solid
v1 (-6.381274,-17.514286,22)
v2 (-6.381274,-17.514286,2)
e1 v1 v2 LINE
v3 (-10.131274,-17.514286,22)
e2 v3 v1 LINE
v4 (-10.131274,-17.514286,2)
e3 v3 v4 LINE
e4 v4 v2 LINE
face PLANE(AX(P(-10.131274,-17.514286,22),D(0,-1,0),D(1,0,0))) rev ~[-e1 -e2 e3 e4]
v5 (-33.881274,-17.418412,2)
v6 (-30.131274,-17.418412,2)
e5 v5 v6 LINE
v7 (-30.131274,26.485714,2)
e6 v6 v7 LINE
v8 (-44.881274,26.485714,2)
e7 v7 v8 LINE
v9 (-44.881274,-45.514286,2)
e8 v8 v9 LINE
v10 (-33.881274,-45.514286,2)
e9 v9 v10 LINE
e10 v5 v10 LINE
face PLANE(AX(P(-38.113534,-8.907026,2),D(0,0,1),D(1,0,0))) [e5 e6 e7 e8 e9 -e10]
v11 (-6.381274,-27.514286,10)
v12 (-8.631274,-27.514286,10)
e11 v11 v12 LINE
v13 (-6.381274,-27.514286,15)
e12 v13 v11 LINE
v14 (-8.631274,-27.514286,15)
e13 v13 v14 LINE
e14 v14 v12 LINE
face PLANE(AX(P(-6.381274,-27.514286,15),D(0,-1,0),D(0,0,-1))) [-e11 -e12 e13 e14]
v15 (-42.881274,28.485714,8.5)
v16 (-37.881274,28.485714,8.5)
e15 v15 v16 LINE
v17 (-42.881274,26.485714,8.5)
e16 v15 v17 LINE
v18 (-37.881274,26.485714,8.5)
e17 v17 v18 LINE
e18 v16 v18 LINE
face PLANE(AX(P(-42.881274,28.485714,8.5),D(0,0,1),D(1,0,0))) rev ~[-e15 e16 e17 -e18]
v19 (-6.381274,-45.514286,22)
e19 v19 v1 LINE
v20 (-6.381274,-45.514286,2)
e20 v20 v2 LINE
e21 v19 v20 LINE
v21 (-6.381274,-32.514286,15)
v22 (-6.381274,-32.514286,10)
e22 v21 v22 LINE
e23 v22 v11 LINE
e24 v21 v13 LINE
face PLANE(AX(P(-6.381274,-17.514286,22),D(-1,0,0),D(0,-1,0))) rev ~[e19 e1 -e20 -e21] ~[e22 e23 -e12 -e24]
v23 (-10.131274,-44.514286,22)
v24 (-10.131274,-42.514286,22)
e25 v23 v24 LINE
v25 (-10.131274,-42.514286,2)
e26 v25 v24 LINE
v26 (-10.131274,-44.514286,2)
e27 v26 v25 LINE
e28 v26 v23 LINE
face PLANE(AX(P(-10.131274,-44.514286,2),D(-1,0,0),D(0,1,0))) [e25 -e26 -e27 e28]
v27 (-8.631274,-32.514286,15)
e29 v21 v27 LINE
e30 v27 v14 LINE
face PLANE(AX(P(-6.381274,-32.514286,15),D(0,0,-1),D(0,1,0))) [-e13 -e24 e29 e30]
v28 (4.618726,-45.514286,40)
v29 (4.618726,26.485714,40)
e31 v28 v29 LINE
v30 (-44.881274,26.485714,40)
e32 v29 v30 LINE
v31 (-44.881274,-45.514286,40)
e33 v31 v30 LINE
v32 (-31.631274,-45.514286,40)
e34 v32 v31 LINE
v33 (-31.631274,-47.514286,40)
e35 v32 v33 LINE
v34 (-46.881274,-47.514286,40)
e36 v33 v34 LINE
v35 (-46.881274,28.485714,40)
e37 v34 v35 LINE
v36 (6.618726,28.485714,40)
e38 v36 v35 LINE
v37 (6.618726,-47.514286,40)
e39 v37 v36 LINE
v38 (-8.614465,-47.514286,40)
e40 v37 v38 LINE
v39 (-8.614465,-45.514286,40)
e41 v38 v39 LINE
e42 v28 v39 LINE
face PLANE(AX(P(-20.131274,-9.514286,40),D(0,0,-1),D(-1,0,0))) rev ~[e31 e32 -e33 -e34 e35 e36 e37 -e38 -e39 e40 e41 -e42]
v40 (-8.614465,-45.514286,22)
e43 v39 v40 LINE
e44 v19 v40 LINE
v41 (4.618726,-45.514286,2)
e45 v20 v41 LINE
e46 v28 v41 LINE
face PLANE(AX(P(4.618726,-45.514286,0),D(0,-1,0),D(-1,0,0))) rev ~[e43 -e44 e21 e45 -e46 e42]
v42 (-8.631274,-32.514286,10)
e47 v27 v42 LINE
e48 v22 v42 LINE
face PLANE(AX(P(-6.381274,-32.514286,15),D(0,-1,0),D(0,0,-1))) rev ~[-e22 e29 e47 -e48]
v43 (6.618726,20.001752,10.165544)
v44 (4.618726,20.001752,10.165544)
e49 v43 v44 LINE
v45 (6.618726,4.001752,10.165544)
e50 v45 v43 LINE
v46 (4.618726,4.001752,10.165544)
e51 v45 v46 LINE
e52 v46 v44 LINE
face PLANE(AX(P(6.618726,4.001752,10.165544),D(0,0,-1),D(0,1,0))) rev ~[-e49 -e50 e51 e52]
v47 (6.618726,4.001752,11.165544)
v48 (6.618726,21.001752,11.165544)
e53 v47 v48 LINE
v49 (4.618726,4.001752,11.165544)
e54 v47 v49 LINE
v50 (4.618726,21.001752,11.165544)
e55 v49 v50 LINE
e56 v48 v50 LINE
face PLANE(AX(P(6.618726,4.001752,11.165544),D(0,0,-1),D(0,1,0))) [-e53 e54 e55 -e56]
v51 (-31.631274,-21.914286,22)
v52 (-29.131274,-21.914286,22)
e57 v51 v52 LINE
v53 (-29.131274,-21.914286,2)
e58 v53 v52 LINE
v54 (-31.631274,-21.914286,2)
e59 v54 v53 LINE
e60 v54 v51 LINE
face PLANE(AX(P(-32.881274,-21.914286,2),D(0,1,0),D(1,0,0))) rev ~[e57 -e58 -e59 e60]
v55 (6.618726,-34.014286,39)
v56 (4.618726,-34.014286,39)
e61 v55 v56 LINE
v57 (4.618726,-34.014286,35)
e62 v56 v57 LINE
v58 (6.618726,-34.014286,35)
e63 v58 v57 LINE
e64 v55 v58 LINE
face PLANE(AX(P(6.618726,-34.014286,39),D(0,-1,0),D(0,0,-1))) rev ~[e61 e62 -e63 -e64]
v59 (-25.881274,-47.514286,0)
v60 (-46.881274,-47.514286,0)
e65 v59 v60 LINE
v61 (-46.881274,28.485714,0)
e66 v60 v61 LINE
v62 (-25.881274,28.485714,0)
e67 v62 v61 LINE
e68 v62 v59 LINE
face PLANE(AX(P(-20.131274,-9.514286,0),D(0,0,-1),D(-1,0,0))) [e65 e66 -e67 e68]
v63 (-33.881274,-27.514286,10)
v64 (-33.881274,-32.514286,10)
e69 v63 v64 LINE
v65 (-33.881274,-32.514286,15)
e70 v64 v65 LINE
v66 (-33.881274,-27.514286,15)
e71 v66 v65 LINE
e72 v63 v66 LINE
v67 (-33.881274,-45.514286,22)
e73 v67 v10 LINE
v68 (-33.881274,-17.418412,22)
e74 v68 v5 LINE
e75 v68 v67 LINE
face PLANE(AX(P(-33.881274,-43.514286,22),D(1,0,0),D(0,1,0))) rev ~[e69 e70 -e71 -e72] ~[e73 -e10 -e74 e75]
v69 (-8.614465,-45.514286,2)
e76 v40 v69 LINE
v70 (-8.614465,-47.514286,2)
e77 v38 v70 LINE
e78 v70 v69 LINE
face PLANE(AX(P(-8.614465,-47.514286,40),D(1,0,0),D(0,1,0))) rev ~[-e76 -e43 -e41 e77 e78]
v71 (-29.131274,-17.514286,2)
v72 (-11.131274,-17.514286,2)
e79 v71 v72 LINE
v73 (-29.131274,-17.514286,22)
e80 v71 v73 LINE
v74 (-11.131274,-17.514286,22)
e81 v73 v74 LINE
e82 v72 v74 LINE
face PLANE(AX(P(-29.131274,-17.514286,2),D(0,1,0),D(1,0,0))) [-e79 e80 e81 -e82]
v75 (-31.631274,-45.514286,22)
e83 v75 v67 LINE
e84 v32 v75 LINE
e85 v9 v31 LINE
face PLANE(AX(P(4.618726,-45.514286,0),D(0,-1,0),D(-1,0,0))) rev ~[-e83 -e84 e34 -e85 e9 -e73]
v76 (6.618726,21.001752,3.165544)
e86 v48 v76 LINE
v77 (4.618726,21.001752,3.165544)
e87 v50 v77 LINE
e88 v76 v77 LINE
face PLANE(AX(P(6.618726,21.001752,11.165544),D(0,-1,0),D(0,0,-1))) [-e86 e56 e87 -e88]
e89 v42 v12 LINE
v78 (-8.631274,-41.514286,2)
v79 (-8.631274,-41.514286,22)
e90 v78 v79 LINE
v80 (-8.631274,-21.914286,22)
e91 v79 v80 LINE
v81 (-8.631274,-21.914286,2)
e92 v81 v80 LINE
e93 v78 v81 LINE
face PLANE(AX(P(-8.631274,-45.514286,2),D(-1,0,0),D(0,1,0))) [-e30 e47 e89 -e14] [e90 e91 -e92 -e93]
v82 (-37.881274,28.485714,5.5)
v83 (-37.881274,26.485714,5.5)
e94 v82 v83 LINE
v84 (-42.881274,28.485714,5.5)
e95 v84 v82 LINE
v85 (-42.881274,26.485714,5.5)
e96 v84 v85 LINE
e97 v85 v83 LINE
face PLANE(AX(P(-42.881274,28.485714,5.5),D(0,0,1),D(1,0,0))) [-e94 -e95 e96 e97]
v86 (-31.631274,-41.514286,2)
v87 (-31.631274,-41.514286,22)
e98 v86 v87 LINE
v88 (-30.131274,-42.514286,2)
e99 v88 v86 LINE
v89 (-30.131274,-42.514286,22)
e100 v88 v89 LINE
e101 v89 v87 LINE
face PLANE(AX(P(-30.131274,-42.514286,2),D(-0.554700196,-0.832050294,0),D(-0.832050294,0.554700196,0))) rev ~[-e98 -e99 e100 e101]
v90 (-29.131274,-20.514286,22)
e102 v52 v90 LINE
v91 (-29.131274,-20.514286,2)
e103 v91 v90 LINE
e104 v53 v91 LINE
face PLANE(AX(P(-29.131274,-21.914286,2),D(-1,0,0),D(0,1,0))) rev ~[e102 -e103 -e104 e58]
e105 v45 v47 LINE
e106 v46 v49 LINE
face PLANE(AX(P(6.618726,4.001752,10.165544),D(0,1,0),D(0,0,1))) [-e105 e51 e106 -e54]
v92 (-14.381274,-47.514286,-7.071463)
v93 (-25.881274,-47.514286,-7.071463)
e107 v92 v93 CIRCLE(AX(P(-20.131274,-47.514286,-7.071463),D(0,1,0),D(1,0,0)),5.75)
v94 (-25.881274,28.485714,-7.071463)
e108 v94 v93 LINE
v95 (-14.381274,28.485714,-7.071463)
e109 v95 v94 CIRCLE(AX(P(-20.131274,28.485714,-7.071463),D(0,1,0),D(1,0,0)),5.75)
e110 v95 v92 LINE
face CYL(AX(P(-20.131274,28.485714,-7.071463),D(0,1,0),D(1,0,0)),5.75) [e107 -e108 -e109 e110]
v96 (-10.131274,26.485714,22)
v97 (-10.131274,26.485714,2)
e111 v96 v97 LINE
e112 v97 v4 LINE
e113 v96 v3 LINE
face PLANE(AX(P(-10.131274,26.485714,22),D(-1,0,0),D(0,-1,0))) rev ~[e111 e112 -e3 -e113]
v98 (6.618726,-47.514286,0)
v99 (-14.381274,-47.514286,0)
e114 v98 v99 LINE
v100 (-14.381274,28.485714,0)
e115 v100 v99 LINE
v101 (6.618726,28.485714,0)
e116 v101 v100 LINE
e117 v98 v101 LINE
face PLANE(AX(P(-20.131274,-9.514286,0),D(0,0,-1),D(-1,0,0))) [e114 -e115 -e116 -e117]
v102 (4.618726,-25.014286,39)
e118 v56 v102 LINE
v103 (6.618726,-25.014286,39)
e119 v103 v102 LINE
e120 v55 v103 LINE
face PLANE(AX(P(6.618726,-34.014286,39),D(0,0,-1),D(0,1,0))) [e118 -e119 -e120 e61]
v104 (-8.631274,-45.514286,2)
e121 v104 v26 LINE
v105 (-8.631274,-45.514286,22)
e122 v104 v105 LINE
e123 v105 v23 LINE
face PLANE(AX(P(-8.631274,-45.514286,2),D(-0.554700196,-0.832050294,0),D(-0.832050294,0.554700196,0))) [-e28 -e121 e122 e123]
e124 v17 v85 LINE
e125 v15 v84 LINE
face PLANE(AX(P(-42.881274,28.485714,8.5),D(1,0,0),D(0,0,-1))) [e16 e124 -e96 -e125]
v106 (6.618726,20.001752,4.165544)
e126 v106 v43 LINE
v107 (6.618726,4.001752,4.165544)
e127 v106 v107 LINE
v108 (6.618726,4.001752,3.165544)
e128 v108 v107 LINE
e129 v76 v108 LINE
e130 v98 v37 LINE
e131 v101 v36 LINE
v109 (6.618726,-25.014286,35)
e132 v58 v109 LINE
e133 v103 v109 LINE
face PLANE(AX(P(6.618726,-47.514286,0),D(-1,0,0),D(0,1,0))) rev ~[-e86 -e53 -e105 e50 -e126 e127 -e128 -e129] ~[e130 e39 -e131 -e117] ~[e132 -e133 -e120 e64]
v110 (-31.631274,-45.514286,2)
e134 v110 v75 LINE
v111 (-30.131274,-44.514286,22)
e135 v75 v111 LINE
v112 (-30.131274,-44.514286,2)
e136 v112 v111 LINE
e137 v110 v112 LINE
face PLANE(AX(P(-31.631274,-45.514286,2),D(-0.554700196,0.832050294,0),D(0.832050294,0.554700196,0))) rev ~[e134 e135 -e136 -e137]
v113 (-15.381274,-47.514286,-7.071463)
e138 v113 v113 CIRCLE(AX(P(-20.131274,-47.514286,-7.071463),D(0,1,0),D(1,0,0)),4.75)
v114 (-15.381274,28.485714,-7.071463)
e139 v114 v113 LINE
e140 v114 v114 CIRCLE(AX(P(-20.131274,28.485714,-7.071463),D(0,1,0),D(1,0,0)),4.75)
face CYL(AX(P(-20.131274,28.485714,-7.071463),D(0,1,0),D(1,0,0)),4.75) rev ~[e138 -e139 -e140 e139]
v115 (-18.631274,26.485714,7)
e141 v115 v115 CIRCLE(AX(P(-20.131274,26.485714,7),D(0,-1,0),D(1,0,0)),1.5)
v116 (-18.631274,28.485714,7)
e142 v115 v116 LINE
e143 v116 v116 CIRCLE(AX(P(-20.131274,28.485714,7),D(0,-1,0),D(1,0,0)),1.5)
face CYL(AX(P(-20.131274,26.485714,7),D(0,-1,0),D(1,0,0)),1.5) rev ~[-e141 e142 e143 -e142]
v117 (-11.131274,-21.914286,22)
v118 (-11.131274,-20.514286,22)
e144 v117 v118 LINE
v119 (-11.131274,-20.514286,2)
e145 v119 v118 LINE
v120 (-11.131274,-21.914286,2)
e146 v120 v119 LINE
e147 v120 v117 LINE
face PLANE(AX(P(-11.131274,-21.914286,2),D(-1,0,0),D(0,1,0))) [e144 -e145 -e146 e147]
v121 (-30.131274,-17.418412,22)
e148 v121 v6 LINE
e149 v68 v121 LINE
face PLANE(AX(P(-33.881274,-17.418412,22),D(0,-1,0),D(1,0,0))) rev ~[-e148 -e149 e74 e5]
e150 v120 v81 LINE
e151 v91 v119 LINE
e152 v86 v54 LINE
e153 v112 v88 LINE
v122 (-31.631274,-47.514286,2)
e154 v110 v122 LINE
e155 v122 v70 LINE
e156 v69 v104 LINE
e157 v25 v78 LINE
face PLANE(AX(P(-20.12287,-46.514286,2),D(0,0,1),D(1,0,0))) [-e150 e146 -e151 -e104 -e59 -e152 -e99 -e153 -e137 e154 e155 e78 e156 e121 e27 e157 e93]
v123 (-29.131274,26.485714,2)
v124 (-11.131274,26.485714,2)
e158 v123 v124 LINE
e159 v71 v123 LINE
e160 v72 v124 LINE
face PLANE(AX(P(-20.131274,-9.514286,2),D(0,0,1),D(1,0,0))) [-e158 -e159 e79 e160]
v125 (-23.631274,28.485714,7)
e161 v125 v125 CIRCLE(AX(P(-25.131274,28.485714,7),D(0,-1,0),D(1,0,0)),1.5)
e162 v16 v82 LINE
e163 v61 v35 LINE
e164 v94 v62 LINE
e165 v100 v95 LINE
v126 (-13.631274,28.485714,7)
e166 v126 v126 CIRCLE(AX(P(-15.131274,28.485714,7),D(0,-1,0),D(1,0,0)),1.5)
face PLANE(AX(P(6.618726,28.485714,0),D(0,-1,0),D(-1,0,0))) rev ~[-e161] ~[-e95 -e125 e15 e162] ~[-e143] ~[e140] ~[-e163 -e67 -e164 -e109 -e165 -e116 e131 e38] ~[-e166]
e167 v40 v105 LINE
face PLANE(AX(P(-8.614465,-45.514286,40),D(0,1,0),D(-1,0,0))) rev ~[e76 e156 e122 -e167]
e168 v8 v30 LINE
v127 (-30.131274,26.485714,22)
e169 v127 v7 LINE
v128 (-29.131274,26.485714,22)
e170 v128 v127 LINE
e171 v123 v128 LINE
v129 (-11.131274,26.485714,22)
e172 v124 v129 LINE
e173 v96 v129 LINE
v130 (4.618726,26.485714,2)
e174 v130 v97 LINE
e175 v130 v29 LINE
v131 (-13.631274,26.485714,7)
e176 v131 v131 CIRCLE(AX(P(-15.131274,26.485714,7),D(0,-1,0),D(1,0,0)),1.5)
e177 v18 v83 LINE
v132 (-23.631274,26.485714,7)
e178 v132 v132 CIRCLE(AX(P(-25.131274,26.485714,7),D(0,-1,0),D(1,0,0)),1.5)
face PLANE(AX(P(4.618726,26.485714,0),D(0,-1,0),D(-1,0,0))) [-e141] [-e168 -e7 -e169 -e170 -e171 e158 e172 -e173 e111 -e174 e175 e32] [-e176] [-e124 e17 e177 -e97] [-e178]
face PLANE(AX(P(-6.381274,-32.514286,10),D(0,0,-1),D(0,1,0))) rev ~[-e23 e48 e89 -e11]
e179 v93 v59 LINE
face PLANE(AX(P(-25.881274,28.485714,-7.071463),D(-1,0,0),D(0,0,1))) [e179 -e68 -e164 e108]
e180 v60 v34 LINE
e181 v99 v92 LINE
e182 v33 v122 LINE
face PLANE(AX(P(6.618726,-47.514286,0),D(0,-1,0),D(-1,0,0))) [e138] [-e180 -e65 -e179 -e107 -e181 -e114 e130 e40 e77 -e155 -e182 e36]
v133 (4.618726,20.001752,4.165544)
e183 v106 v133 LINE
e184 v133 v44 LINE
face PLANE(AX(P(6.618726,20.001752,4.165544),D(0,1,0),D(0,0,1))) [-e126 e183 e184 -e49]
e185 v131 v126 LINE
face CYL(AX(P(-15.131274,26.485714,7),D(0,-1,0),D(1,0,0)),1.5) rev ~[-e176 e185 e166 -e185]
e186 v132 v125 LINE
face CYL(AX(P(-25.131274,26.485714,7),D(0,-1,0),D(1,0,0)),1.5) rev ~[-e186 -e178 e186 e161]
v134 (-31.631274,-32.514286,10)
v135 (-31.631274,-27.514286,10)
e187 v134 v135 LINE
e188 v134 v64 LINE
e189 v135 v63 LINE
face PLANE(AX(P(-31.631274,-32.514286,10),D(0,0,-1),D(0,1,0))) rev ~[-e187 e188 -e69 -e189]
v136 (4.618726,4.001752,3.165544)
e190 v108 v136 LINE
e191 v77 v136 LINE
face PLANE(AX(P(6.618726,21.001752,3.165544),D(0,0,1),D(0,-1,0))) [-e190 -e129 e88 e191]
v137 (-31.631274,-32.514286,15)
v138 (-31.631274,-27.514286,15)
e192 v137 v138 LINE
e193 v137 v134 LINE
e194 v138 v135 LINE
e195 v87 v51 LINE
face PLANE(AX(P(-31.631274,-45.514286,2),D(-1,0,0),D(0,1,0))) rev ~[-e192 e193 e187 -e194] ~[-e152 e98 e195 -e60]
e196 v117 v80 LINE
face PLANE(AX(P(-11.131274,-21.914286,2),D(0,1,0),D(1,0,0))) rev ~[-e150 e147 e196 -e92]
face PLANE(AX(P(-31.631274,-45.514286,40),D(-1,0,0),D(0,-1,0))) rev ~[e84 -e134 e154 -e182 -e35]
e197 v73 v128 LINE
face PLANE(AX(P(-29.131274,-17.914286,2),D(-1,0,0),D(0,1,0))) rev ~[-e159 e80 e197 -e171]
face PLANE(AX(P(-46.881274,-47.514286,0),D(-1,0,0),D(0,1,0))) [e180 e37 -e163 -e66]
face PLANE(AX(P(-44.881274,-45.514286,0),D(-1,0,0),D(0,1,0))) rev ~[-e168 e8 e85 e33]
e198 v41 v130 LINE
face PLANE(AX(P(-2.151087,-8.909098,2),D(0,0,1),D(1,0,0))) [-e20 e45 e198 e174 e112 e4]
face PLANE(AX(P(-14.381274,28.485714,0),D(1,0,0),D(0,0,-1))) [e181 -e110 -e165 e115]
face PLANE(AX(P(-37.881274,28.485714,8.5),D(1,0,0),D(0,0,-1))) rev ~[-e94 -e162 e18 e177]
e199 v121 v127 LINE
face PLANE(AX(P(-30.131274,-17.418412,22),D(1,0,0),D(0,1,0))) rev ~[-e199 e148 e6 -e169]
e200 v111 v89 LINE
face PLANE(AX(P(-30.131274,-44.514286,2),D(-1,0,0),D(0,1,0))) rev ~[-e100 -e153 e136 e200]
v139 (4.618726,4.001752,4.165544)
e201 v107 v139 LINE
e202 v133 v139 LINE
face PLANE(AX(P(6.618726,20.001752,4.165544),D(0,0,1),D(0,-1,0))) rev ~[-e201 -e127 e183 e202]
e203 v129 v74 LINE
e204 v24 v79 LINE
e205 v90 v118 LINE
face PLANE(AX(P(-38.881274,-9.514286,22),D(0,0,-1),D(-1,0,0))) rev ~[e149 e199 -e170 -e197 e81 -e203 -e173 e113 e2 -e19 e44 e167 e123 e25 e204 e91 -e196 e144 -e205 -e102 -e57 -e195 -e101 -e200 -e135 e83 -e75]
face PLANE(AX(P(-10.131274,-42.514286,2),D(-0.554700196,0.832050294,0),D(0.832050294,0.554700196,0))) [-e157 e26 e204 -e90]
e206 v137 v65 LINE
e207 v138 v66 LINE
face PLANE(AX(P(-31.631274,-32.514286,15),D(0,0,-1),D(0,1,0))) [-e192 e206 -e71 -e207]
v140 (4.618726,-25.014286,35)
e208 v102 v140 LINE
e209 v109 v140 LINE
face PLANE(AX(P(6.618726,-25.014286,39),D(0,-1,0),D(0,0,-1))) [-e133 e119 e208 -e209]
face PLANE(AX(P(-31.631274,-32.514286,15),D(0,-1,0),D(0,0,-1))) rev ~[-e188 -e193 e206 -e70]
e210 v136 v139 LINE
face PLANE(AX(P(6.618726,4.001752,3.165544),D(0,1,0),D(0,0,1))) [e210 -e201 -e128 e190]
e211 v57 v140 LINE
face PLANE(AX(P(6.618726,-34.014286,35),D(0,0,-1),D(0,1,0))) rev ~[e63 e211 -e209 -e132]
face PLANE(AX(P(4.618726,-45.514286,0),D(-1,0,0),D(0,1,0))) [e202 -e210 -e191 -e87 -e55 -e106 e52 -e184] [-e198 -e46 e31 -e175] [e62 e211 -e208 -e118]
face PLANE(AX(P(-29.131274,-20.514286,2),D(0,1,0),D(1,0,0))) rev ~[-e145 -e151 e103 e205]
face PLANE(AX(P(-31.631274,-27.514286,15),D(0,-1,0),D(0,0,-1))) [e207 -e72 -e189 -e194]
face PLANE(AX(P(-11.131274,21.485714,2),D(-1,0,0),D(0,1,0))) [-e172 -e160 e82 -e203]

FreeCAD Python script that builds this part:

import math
import FreeCAD as App
import Part
import Sketcher
from FreeCAD import Vector


def add_polygon(sketch, points):
    """Adds a closed chain of lines whose ends are joined by coincident constraints."""
    first, n = sketch.GeometryCount, len(points)
    for a, b in zip(points, points[1:] + points[:1]):
        sketch.addGeometry(Part.LineSegment(App.Vector(*a, 0), App.Vector(*b, 0)), False)
    for i in range(n):
        sketch.addConstraint(Sketcher.Constraint("Coincident", first + i, 2, first + (i + 1) % n, 1))

doc = App.newDocument("Part")
body = doc.addObject("PartDesign::Body", "Body")

# Sketch on XY plane
sketch1 = body.newObject("Sketcher::SketchObject", "Sketch")
sketch1.AttachmentSupport = (doc.getObject("XY_Plane"), [""])
sketch1.MapMode = "FlatFace"
add_polygon(sketch1, [(-33, 26), (-33, -46), (-7, -46), (-7, 26)])  # lines 0-3
sketch1.addConstraint([
    Sketcher.Constraint("Vertical", 0),
    Sketcher.Constraint("Horizontal", 1),
    Sketcher.Constraint("Vertical", 2),
    Sketcher.Constraint("Horizontal", 3),
    Sketcher.Constraint("DistanceY", 0, 2, 0, 1, 72.0),
    Sketcher.Constraint("DistanceX", 1, 1, 1, 2, 25.5),
    Sketcher.Constraint("DistanceX", 0, 2, -1, 1, 32.881274),
    Sketcher.Constraint("DistanceY", 0, 2, -1, 1, 45.514286),
])
pad1 = body.newObject("PartDesign::Pad", "Pad")
pad1.Profile = sketch1
pad1.Length = 2

# Sketch on XY plane
sketch2 = body.newObject("Sketcher::SketchObject", "Sketch001")
sketch2.AttachmentSupport = (doc.getObject("XY_Plane"), [""])
sketch2.MapMode = "FlatFace"
sketch2.AttachmentOffset = App.Placement(Vector(0, 0, 2), App.Rotation())
add_polygon(sketch2, [(-32.9, 26.5), (-32.9, 21.5), (-29.1, 21.5), (-29.1, 26.5)])  # lines 0-3
add_polygon(sketch2, [(-32.9, -17.9), (-32.9, -21.9), (-29.1, -21.9), (-29.1, -17.9)])  # lines 4-7
add_polygon(sketch2, [(-11.1, -17.9), (-11.1, -21.9), (-7.4, -21.9), (-7.4, -17.9)])  # lines 8-11
add_polygon(sketch2, [(-11.1, 26.5), (-11.1, 21.5), (-7.4, 21.5), (-7.4, 26.5)])  # lines 12-15
sketch2.addConstraint([
    Sketcher.Constraint("Vertical", 0),
    Sketcher.Constraint("Horizontal", 1),
    Sketcher.Constraint("Vertical", 2),
    Sketcher.Constraint("Horizontal", 3),
    Sketcher.Constraint("Vertical", 4),
    Sketcher.Constraint("Horizontal", 5),
    Sketcher.Constraint("Vertical", 6),
    Sketcher.Constraint("Horizontal", 7),
    Sketcher.Constraint("Vertical", 8),
    Sketcher.Constraint("Horizontal", 9),
    Sketcher.Constraint("Vertical", 10),
    Sketcher.Constraint("Horizontal", 11),
    Sketcher.Constraint("Vertical", 12),
    Sketcher.Constraint("Horizontal", 13),
    Sketcher.Constraint("Vertical", 14),
    Sketcher.Constraint("Horizontal", 15),
    Sketcher.Constraint("Horizontal", 5, 2, 8, 2),
    Sketcher.Constraint("Horizontal", 7, 2, 10, 2),
    Sketcher.Constraint("Horizontal", 1, 2, 12, 2),
    Sketcher.Constraint("Horizontal", 3, 2, 14, 2),
    Sketcher.Constraint("Vertical", 3, 2, 4, 2),
    Sketcher.Constraint("Vertical", 2, 2, 5, 2),
    Sketcher.Constraint("Vertical", 11, 2, 12, 2),
    Sketcher.Constraint("Vertical", 10, 2, 13, 2),
    Sketcher.Constraint("Equal", 7, 9),
    Sketcher.Constraint("DistanceY", 0, 2, 0, 1, 5.0),
    Sketcher.Constraint("DistanceY", 4, 2, 4, 1, 4.0),
    Sketcher.Constraint("DistanceX", 5, 2, 8, 2, 18.0),
    Sketcher.Constraint("DistanceX", 1, 1, 1, 2, 3.75),
    Sketcher.Constraint("DistanceY", 4, 2, 0, 2, 43.4),
    Sketcher.Constraint("DistanceX", 0, 2, -1, 1, 32.881274),
    Sketcher.Constraint("DistanceY", -1, 1, 0, 2, 21.485714),
])
pad2 = body.newObject("PartDesign::Pad", "Pad001")
pad2.Profile = sketch2
pad2.Length = 20

# Sketch on XY plane
sketch3 = body.newObject("Sketcher::SketchObject", "Sketch002")
sketch3.AttachmentSupport = (doc.getObject("XY_Plane"), [""])
sketch3.MapMode = "FlatFace"
sketch3.AttachmentOffset = App.Placement(Vector(0, 0, 2), App.Rotation())
add_polygon(sketch3, [(-29.1, -17.5), (-29.1, -20.5), (-11.1, -20.5), (-11.1, -17.5)])  # lines 0-3
sketch3.addConstraint([
    Sketcher.Constraint("Vertical", 0),
    Sketcher.Constraint("Horizontal", 1),
    Sketcher.Constraint("Vertical", 2),
    Sketcher.Constraint("Horizontal", 3),
    Sketcher.Constraint("DistanceX", 1, 1, 1, 2, 18.0),
    Sketcher.Constraint("DistanceY", 0, 2, 0, 1, 3.0),
    Sketcher.Constraint("DistanceX", 0, 2, -1, 1, 29.131274),
    Sketcher.Constraint("DistanceY", 0, 2, -1, 1, 20.514286),
])
pad3 = body.newObject("PartDesign::Pad", "Pad002")
pad3.Profile = sketch3
pad3.Length = 20

# Sketch on XY plane
sketch4 = body.newObject("Sketcher::SketchObject", "Sketch003")
sketch4.AttachmentSupport = (doc.getObject("XY_Plane"), [""])
sketch4.MapMode = "FlatFace"
sketch4.AttachmentOffset = App.Placement(Vector(0, 0, 2), App.Rotation())
add_polygon(sketch4, [(-32.9, 21.5), (-32.9, -17.9), (-29.1, -17.9), (-29.1, 21.5)])  # lines 0-3
add_polygon(sketch4, [(-11.1, 21.5), (-11.1, -17.9), (-7.4, -17.9), (-7.4, 21.5)])  # lines 4-7
sketch4.addConstraint([
    Sketcher.Constraint("Vertical", 0),
    Sketcher.Constraint("Horizontal", 1),
    Sketcher.Constraint("Vertical", 2),
    Sketcher.Constraint("Horizontal", 3),
    Sketcher.Constraint("Vertical", 4),
    Sketcher.Constraint("Horizontal", 5),
    Sketcher.Constraint("Vertical", 6),
    Sketcher.Constraint("Horizontal", 7),
    Sketcher.Constraint("Horizontal", 1, 2, 4, 2),
    Sketcher.Constraint("Horizontal", 3, 2, 6, 2),
    Sketcher.Constraint("Equal", 3, 5),
    Sketcher.Constraint("DistanceY", 0, 2, 0, 1, 39.4),
    Sketcher.Constraint("DistanceX", 1, 2, 4, 2, 18.0),
    Sketcher.Constraint("DistanceX", 1, 1, 1, 2, 3.75),
    Sketcher.Constraint("DistanceX", 0, 2, -1, 1, 32.881274),
    Sketcher.Constraint("DistanceY", 0, 2, -1, 1, 17.914286),
])
pad4 = body.newObject("PartDesign::Pad", "Pad003")
pad4.Profile = sketch4
pad4.Length = 20

# Sketch on XY plane
sketch5 = body.newObject("Sketcher::SketchObject", "Sketch004")
sketch5.AttachmentSupport = (doc.getObject("XY_Plane"), [""])
sketch5.MapMode = "FlatFace"
sketch5.AttachmentOffset = App.Placement(Vector(0, 0, 2), App.Rotation())
add_polygon(sketch5, [(-32.9, -21.9), (-32.9, -45.5), (-31.6, -45.5), (-31.6, -21.9)])  # lines 0-3
add_polygon(sketch5, [(-8.6, -21.9), (-8.6, -45.5), (-7.4, -45.5), (-7.4, -21.9)])  # lines 4-7
sketch5.addConstraint([
    Sketcher.Constraint("Vertical", 0),
    Sketcher.Constraint("Horizontal", 1),
    Sketcher.Constraint("Vertical", 2),
    Sketcher.Constraint("Horizontal", 3),
    Sketcher.Constraint("Vertical", 4),
    Sketcher.Constraint("Horizontal", 5),
    Sketcher.Constraint("Vertical", 6),
    Sketcher.Constraint("Horizontal", 7),
    Sketcher.Constraint("Horizontal", 1, 2, 4, 2),
    Sketcher.Constraint("Horizontal", 3, 2, 6, 2),
    Sketcher.Constraint("Equal", 3, 5),
    Sketcher.Constraint("DistanceY", 0, 2, 0, 1, 23.6),
    Sketcher.Constraint("DistanceX", 1, 2, 4, 2, 23.0),
    Sketcher.Constraint("DistanceX", 1, 1, 1, 2, 1.25),
    Sketcher.Constraint("DistanceX", 0, 2, -1, 1, 32.881274),
    Sketcher.Constraint("DistanceY", 0, 2, -1, 1, 45.514286),
])
pad5 = body.newObject("PartDesign::Pad", "Pad004")
pad5.Profile = sketch5
pad5.Length = 20

# Sketch on XY plane
sketch6 = body.newObject("Sketcher::SketchObject", "Sketch005")
sketch6.AttachmentSupport = (doc.getObject("XY_Plane"), [""])
sketch6.MapMode = "FlatFace"
sketch6.AttachmentOffset = App.Placement(Vector(0, 0, 2), App.Rotation())
add_polygon(sketch6, [(-31.6, -45.5), (-30.1, -44.5), (-30.1, -42.5), (-31.6, -41.5)])  # lines 0-3
add_polygon(sketch6, [(-10.1, -44.5), (-8.6, -45.5), (-8.6, -41.5), (-10.1, -42.5)])  # lines 4-7
sketch6.addConstraint([
    Sketcher.Constraint("Vertical", 1),
    Sketcher.Constraint("Vertical", 3),
    Sketcher.Constraint("Vertical", 5),
    Sketcher.Constraint("Vertical", 7),
    Sketcher.Constraint("Parallel", 2, 4),
    Sketcher.Constraint("Parallel", 0, 6),
    Sketcher.Constraint("Horizontal", 3, 2, 4, 2),
    Sketcher.Constraint("Horizontal", 2, 2, 5, 2),
    Sketcher.Constraint("Horizontal", 1, 2, 6, 2),
    Sketcher.Constraint("Horizontal", 0, 2, 7, 2),
    Sketcher.Constraint("DistanceY", 1, 1, 1, 2, 2.0),
    Sketcher.Constraint("DistanceY", 3, 2, 3, 1, 4.0),
    Sketcher.Constraint("DistanceX", 3, 2, 4, 2, 23.0),
    Sketcher.Constraint("DistanceX", 1, 2, 6, 2, 20.0),
    Sketcher.Constraint("DistanceX", 0, 2, -1, 1, 30.131274),
    Sketcher.Constraint("DistanceY", 0, 2, -1, 1, 44.514286),
])
pad6 = body.newObject("PartDesign::Pad", "Pad005")
pad6.Profile = sketch6
pad6.Length = 20

# Sketch on XY plane
sketch7 = body.newObject("Sketcher::SketchObject", "Sketch006")
sketch7.AttachmentSupport = (doc.getObject("XY_Plane"), [""])
sketch7.MapMode = "FlatFace"
add_polygon(sketch7, [(-33, 26), (-33, -46), (-45, -46), (-45, 26)])  # lines 0-3
add_polygon(sketch7, [(5, 26), (5, -46), (-7, -46), (-7, 26)])  # lines 4-7
sketch7.addConstraint([
    Sketcher.Constraint("Vertical", 0),
    Sketcher.Constraint("Horizontal", 1),
    Sketcher.Constraint("Vertical", 2),
    Sketcher.Constraint("Horizontal", 3),
    Sketcher.Constraint("Vertical", 4),
    Sketcher.Constraint("Horizontal", 5),
    Sketcher.Constraint("Vertical", 6),
    Sketcher.Constraint("Horizontal", 7),
    Sketcher.Constraint("Horizontal", 1, 2, 4, 2),
    Sketcher.Constraint("Horizontal", 3, 2, 6, 2),
    Sketcher.Constraint("Equal", 3, 5),
    Sketcher.Constraint("DistanceX", 1, 2, 1, 1, 12.0),
    Sketcher.Constraint("DistanceY", 0, 2, 0, 1, 72.0),
    Sketcher.Constraint("DistanceX", 0, 2, 4, 2, 37.5),
    Sketcher.Constraint("DistanceX", 0, 2, -1, 1, 32.881274),
    Sketcher.Constraint("DistanceY", 0, 2, -1, 1, 45.514286),
])
pad7 = body.newObject("PartDesign::Pad", "Pad006")
pad7.Profile = sketch7
pad7.Length = 22

# Sketch on XY plane
sketch8 = body.newObject("Sketcher::SketchObject", "Sketch007")
sketch8.AttachmentSupport = (doc.getObject("XY_Plane"), [""])
sketch8.MapMode = "FlatFace"
add_polygon(sketch8, [(7, 28), (7, -48), (-47, -48), (-47, 28)])  # lines 0-3
add_polygon(sketch8, [(-45, -46), (5, -46), (5, 26), (-45, 26)])  # lines 4-7
sketch8.addConstraint([
    Sketcher.Constraint("Vertical", 0),
    Sketcher.Constraint("Horizontal", 1),
    Sketcher.Constraint("Vertical", 2),
    Sketcher.Constraint("Horizontal", 3),
    Sketcher.Constraint("Horizontal", 4),
    Sketcher.Constraint("Vertical", 5),
    Sketcher.Constraint("Horizontal", 6),
    Sketcher.Constraint("Vertical", 7),
    Sketcher.Constraint("DistanceY", 0, 2, 0, 1, 76.0),
    Sketcher.Constraint("DistanceY", 5, 1, 5, 2, 72.0),
    Sketcher.Constraint("DistanceX", 1, 2, 1, 1, 53.5),
    Sketcher.Constraint("DistanceX", 4, 1, 4, 2, 49.5),
    Sketcher.Constraint("DistanceX", 4, 2, 0, 2, 2.0),
    Sketcher.Constraint("DistanceY", 0, 2, 4, 2, 2.0),
    Sketcher.Constraint("DistanceX", -1, 1, 0, 2, 6.618726),
    Sketcher.Constraint("DistanceY", 0, 2, -1, 1, 47.514286),
])
pad8 = body.newObject("PartDesign::Pad", "Pad007")
pad8.Profile = sketch8
pad8.Length = 40

# Sketch on XY plane
sketch9 = body.newObject("Sketcher::SketchObject", "Sketch008")
sketch9.AttachmentSupport = (doc.getObject("XY_Plane"), [""])
sketch9.MapMode = "FlatFace"
sketch9.AttachmentOffset = App.Placement(Vector(0, 0, 22), App.Rotation())
add_polygon(sketch9, [(-43, 24), (-43, -44), (-34, -44), (-34, 24)])  # lines 0-3
add_polygon(sketch9, [(-6, 24), (-6, -44), (3, -44), (3, 24)])  # lines 4-7
sketch9.addConstraint([
    Sketcher.Constraint("Vertical", 0),
    Sketcher.Constraint("Horizontal", 1),
    Sketcher.Constraint("Vertical", 2),
    Sketcher.Constraint("Horizontal", 3),
    Sketcher.Constraint("Vertical", 4),
    Sketcher.Constraint("Horizontal", 5),
    Sketcher.Constraint("Vertical", 6),
    Sketcher.Constraint("Horizontal", 7),
    Sketcher.Constraint("Horizontal", 1, 2, 4, 2),
    Sketcher.Constraint("Horizontal", 3, 2, 6, 2),
    Sketcher.Constraint("Equal", 3, 5),
    Sketcher.Constraint("DistanceX", 1, 1, 1, 2, 9.0),
    Sketcher.Constraint("DistanceY", 0, 2, 0, 1, 68.0),
    Sketcher.Constraint("DistanceX", 1, 2, 4, 2, 27.5),
    Sketcher.Constraint("DistanceX", 0, 2, -1, 1, 42.881274),
    Sketcher.Constraint("DistanceY", 0, 2, -1, 1, 43.514286),
])
pocket1 = body.newObject("PartDesign::Pocket", "Pocket")
pocket1.Profile = sketch9
pocket1.Length = 20

# Sketch on XZ plane
sketch10 = body.newObject("Sketcher::SketchObject", "Sketch009")
sketch10.AttachmentSupport = (doc.getObject("XZ_Plane"), [""])
sketch10.MapMode = "FlatFace"
sketch10.AttachmentOffset = App.Placement(Vector(0, 0, -26.485714), App.Rotation())
sketch10.addGeometry([
    Part.Circle(Vector(-25.1, 7, 0), Vector(0, 0, 1), 1.5),
    Part.Circle(Vector(-15.1, 7, 0), Vector(0, 0, 1), 1.5),
    Part.Circle(Vector(-20.1, 7, 0), Vector(0, 0, 1), 1.5),
], False)
sketch10.addConstraint([
    Sketcher.Constraint("Equal", 0, 1),
    Sketcher.Constraint("Equal", 1, 2),
    Sketcher.Constraint("Horizontal", 0, 3, 1, 3),
    Sketcher.Constraint("Horizontal", 1, 3, 2, 3),
    Sketcher.Constraint("Diameter", 0, 3.0),
    Sketcher.Constraint("DistanceY", -1, 1, 0, 3, 7.0),
    Sketcher.Constraint("DistanceX", 0, 3, 1, 3, 10.0),
    Sketcher.Constraint("DistanceX", 0, 3, 2, 3, 5.0),
    Sketcher.Constraint("DistanceX", 0, 3, -1, 1, 25.131274),
])
pocket2 = body.newObject("PartDesign::Pocket", "Pocket001")
pocket2.Profile = sketch10
pocket2.Type = "ThroughAll"

# Sketch on XY plane
sketch11 = body.newObject("Sketcher::SketchObject", "Sketch010")
sketch11.AttachmentSupport = (doc.getObject("XY_Plane"), [""])
sketch11.MapMode = "FlatFace"
sketch11.AttachmentOffset = App.Placement(Vector(0, 0, 22), App.Rotation())
add_polygon(sketch11, [(-33.9, -17.4), (-30.1, -17.4), (-30.1, 26.5), (-44.9, 26.5), (-44.9, -45.5), (-33.9, -45.5)])  # lines 0-5
add_polygon(sketch11, [(-10.1, 26.5), (-10.1, -17.5), (-6.4, -17.5), (-6.4, -45.5), (4.6, -45.5), (4.6, 26.5)])  # lines 6-11
sketch11.addConstraint([
    Sketcher.Constraint("Horizontal", 0),
    Sketcher.Constraint("Vertical", 1),
    Sketcher.Constraint("Horizontal", 2),
    Sketcher.Constraint("Vertical", 3),
    Sketcher.Constraint("Horizontal", 4),
    Sketcher.Constraint("Vertical", 5),
    Sketcher.Constraint("Vertical", 6),
    Sketcher.Constraint("Horizontal", 7),
    Sketcher.Constraint("Vertical", 8),
    Sketcher.Constraint("Horizontal", 9),
    Sketcher.Constraint("Vertical", 10),
    Sketcher.Constraint("Horizontal", 11),
    Sketcher.Constraint("Horizontal", 4, 2, 8, 2),
    Sketcher.Constraint("Horizontal", 2, 2, 10, 2),
    Sketcher.Constraint("Equal", 0, 7),
    Sketcher.Constraint("Equal", 4, 9),
    Sketcher.Constraint("DistanceX", 4, 1, 4, 2, 11.0),
    Sketcher.Constraint("DistanceY", 3, 2, 3, 1, 72.0),
    Sketcher.Constraint("DistanceY", 6, 2, 6, 1, 44.0),
    Sketcher.Constraint("DistanceX", 0, 2, 6, 2, 20.0),
    Sketcher.Constraint("DistanceX", 0, 1, 0, 2, 3.75),
    Sketcher.Constraint("DistanceY", 1, 1, 1, 2, 43.904126),
    Sketcher.Constraint("DistanceY", 0, 2, -1, 1, 17.418412),
    Sketcher.Constraint("DistanceX", 0, 2, -1, 1, 30.131274),
])
pocket3 = body.newObject("PartDesign::Pocket", "Pocket002")
pocket3.Profile = sketch11
pocket3.Length = 20

# Sketch on YZ plane
sketch12 = body.newObject("Sketcher::SketchObject", "Sketch011")
sketch12.AttachmentSupport = (doc.getObject("YZ_Plane"), [""])
sketch12.MapMode = "FlatFace"
sketch12.AttachmentOffset = App.Placement(Vector(0, 0, 6.618726), App.Rotation())
add_polygon(sketch12, [(-25, 39), (-34, 39), (-34, 35), (-25, 35)])  # lines 0-3
sketch12.addConstraint([
    Sketcher.Constraint("Horizontal", 0),
    Sketcher.Constraint("Vertical", 1),
    Sketcher.Constraint("Horizontal", 2),
    Sketcher.Constraint("Vertical", 3),
    Sketcher.Constraint("DistanceX", 0, 2, 0, 1, 9.0),
    Sketcher.Constraint("DistanceY", 1, 2, 1, 1, 4.0),
    Sketcher.Constraint("DistanceY", -1, 1, 0, 2, 39.0),
    Sketcher.Constraint("DistanceX", 0, 2, -1, 1, 34.014286),
])
pocket4 = body.newObject("PartDesign::Pocket", "Pocket003")
pocket4.Profile = sketch12
pocket4.Type = "UpToFirst"

# Sketch on YZ plane
sketch13 = body.newObject("Sketcher::SketchObject", "Sketch012")
sketch13.AttachmentSupport = (doc.getObject("YZ_Plane"), [""])
sketch13.MapMode = "FlatFace"
sketch13.AttachmentOffset = App.Placement(Vector(0, 0, -31.631274), App.Rotation())
add_polygon(sketch13, [(-28, 15), (-33, 15), (-33, 10), (-28, 10)])  # lines 0-3
sketch13.addConstraint([
    Sketcher.Constraint("Horizontal", 0),
    Sketcher.Constraint("Vertical", 1),
    Sketcher.Constraint("Horizontal", 2),
    Sketcher.Constraint("Vertical", 3),
    Sketcher.Constraint("Equal", 2, 1),
    Sketcher.Constraint("DistanceX", 0, 2, 0, 1, 5.0),
    Sketcher.Constraint("DistanceY", -1, 1, 0, 2, 15.0),
    Sketcher.Constraint("DistanceX", 0, 2, -1, 1, 32.514286),
])
pocket5 = body.newObject("PartDesign::Pocket", "Pocket004")
pocket5.Profile = sketch13
pocket5.Type = "UpToFirst"

# Sketch on YZ plane
sketch14 = body.newObject("Sketcher::SketchObject", "Sketch013")
sketch14.AttachmentSupport = (doc.getObject("YZ_Plane"), [""])
sketch14.MapMode = "FlatFace"
sketch14.AttachmentOffset = App.Placement(Vector(0, 0, -6.381274), App.Rotation())
add_polygon(sketch14, [(-28, 15), (-33, 15), (-33, 10), (-28, 10)])  # lines 0-3
sketch14.addConstraint([
    Sketcher.Constraint("Horizontal", 0),
    Sketcher.Constraint("Vertical", 1),
    Sketcher.Constraint("Horizontal", 2),
    Sketcher.Constraint("Vertical", 3),
    Sketcher.Constraint("Equal", 2, 1),
    Sketcher.Constraint("DistanceX", 0, 2, 0, 1, 5.0),
    Sketcher.Constraint("DistanceY", -1, 1, 0, 2, 15.0),
    Sketcher.Constraint("DistanceX", 0, 2, -1, 1, 32.514286),
])
pocket6 = body.newObject("PartDesign::Pocket", "Pocket005")
pocket6.Profile = sketch14
pocket6.Type = "UpToFirst"

# Sketch on XZ plane
sketch15 = body.newObject("Sketcher::SketchObject", "Sketch014")
sketch15.AttachmentSupport = (doc.getObject("XZ_Plane"), [""])
sketch15.MapMode = "FlatFace"
sketch15.AttachmentOffset = App.Placement(Vector(0, 0, -28.485714), App.Rotation())
add_polygon(sketch15, [(-42.9, 5.5), (-42.9, 8.5), (-37.9, 8.5), (-37.9, 5.5)])  # lines 0-3
sketch15.addConstraint([
    Sketcher.Constraint("Vertical", 0),
    Sketcher.Constraint("Horizontal", 1),
    Sketcher.Constraint("Vertical", 2),
    Sketcher.Constraint("Horizontal", 3),
    Sketcher.Constraint("DistanceX", 1, 1, 1, 2, 5.0),
    Sketcher.Constraint("DistanceY", 0, 1, 0, 2, 3.0),
    Sketcher.Constraint("DistanceY", -1, 1, 0, 2, 8.5),
    Sketcher.Constraint("DistanceX", 0, 2, -1, 1, 42.881274),
])
pocket7 = body.newObject("PartDesign::Pocket", "Pocket006")
pocket7.Profile = sketch15
pocket7.Type = "UpToFirst"
pocket7.Reversed = True

# Sketch on YZ plane
sketch16 = body.newObject("Sketcher::SketchObject", "Sketch015")
sketch16.AttachmentSupport = (doc.getObject("YZ_Plane"), [""])
sketch16.MapMode = "FlatFace"
sketch16.AttachmentOffset = App.Placement(Vector(0, 0, 6.618726), App.Rotation())
add_polygon(sketch16, [(4, 11.2), (4, 10.2), (20, 10.2), (20, 4.2), (4, 4.2), (4, 3.2), (21, 3.2), (21, 11.2)])  # lines 0-7
sketch16.addConstraint([
    Sketcher.Constraint("Vertical", 0),
    Sketcher.Constraint("Horizontal", 1),
    Sketcher.Constraint("Vertical", 2),
    Sketcher.Constraint("Horizontal", 3),
    Sketcher.Constraint("Vertical", 4),
    Sketcher.Constraint("Horizontal", 5),
    Sketcher.Constraint("Vertical", 6),
    Sketcher.Constraint("Horizontal", 7),
    Sketcher.Constraint("Vertical", 0, 2, 3, 2),
    Sketcher.Constraint("Equal", 0, 4),
    Sketcher.Constraint("DistanceX", 1, 1, 1, 2, 16.0),
    Sketcher.Constraint("DistanceX", 5, 1, 5, 2, 17.0),
    Sketcher.Constraint("DistanceY", 0, 2, 0, 1, 1.0),
    Sketcher.Constraint("DistanceY", 2, 2, 2, 1, 6.0),
    Sketcher.Constraint("DistanceX", -1, 1, 0, 2, 4.001752),
    Sketcher.Constraint("DistanceY", -1, 1, 0, 2, 10.165544),
])
pocket8 = body.newObject("PartDesign::Pocket", "Pocket007")
pocket8.Profile = sketch16
pocket8.Type = "UpToFirst"

# Sketch on XY plane
sketch17 = body.newObject("Sketcher::SketchObject", "Sketch016")
sketch17.AttachmentSupport = (doc.getObject("XY_Plane"), [""])
sketch17.MapMode = "FlatFace"
sketch17.AttachmentOffset = App.Placement(Vector(0, 0, 40), App.Rotation())
add_polygon(sketch17, [(-31.6, -47.5), (-8.6, -47.5), (-8.6, -45.5), (-31.6, -45.5)])  # lines 0-3
sketch17.addConstraint([
    Sketcher.Constraint("Horizontal", 0),
    Sketcher.Constraint("Vertical", 1),
    Sketcher.Constraint("Horizontal", 2),
    Sketcher.Constraint("Vertical", 3),
    Sketcher.Constraint("DistanceY", 1, 1, 1, 2, 2.0),
    Sketcher.Constraint("DistanceX", 0, 1, 0, 2, 23.016809),
    Sketcher.Constraint("DistanceX", 0, 2, -1, 1, 8.614465),
    Sketcher.Constraint("DistanceY", 0, 2, -1, 1, 47.514286),
])
pocket9 = body.newObject("PartDesign::Pocket", "Pocket008")
pocket9.Profile = sketch17
pocket9.Length = 38

# Sketch on XZ plane
sketch18 = body.newObject("Sketcher::SketchObject", "Sketch017")
sketch18.AttachmentSupport = (doc.getObject("XZ_Plane"), [""])
sketch18.MapMode = "FlatFace"
sketch18.AttachmentOffset = App.Placement(Vector(0, 0, -28.485714), App.Rotation())
sketch18.addGeometry([
    Part.LineSegment(Vector(-25.9, 0, 0), Vector(-14.4, 0, 0)),  # 0
    Part.LineSegment(Vector(-14.4, 0, 0), Vector(-14.4, -7.1, 0)),  # 1
    Part.ArcOfCircle(Part.Circle(Vector(-20.1, -7.1, 0), Vector(0, 0, 1), 5.8), math.radians(180), math.radians(360)),  # 2
    Part.LineSegment(Vector(-25.9, -7.1, 0), Vector(-25.9, 0, 0)),  # 3
    Part.Circle(Vector(-20.1, -7.1, 0), Vector(0, 0, 1), 4.8),  # 4
], False)
sketch18.addConstraint([
    Sketcher.Constraint("Coincident", 0, 2, 1, 1),
    Sketcher.Constraint("Tangent", 1, 2, 2, 2),
    Sketcher.Constraint("Tangent", 2, 1, 3, 1),
    Sketcher.Constraint("Coincident", 3, 2, 0, 1),
    Sketcher.Constraint("Horizontal", 0),
    Sketcher.Constraint("Vertical", 1),
    Sketcher.Constraint("Vertical", 3),
    Sketcher.Constraint("Coincident", 4, 3, 2, 3),
    Sketcher.Constraint("PointOnObject", 0, 2, -1),
    Sketcher.Constraint("Diameter", 4, 9.5),
    Sketcher.Constraint("Radius", 2, 5.75),
    Sketcher.Constraint("DistanceY", 1, 2, 1, 1, 7.071463),
    Sketcher.Constraint("DistanceX", 2, 3, -1, 1, 20.131274),
])
pad9 = body.newObject("PartDesign::Pad", "Pad008")
pad9.Profile = sketch18
pad9.Length = 76

doc.recompute()
